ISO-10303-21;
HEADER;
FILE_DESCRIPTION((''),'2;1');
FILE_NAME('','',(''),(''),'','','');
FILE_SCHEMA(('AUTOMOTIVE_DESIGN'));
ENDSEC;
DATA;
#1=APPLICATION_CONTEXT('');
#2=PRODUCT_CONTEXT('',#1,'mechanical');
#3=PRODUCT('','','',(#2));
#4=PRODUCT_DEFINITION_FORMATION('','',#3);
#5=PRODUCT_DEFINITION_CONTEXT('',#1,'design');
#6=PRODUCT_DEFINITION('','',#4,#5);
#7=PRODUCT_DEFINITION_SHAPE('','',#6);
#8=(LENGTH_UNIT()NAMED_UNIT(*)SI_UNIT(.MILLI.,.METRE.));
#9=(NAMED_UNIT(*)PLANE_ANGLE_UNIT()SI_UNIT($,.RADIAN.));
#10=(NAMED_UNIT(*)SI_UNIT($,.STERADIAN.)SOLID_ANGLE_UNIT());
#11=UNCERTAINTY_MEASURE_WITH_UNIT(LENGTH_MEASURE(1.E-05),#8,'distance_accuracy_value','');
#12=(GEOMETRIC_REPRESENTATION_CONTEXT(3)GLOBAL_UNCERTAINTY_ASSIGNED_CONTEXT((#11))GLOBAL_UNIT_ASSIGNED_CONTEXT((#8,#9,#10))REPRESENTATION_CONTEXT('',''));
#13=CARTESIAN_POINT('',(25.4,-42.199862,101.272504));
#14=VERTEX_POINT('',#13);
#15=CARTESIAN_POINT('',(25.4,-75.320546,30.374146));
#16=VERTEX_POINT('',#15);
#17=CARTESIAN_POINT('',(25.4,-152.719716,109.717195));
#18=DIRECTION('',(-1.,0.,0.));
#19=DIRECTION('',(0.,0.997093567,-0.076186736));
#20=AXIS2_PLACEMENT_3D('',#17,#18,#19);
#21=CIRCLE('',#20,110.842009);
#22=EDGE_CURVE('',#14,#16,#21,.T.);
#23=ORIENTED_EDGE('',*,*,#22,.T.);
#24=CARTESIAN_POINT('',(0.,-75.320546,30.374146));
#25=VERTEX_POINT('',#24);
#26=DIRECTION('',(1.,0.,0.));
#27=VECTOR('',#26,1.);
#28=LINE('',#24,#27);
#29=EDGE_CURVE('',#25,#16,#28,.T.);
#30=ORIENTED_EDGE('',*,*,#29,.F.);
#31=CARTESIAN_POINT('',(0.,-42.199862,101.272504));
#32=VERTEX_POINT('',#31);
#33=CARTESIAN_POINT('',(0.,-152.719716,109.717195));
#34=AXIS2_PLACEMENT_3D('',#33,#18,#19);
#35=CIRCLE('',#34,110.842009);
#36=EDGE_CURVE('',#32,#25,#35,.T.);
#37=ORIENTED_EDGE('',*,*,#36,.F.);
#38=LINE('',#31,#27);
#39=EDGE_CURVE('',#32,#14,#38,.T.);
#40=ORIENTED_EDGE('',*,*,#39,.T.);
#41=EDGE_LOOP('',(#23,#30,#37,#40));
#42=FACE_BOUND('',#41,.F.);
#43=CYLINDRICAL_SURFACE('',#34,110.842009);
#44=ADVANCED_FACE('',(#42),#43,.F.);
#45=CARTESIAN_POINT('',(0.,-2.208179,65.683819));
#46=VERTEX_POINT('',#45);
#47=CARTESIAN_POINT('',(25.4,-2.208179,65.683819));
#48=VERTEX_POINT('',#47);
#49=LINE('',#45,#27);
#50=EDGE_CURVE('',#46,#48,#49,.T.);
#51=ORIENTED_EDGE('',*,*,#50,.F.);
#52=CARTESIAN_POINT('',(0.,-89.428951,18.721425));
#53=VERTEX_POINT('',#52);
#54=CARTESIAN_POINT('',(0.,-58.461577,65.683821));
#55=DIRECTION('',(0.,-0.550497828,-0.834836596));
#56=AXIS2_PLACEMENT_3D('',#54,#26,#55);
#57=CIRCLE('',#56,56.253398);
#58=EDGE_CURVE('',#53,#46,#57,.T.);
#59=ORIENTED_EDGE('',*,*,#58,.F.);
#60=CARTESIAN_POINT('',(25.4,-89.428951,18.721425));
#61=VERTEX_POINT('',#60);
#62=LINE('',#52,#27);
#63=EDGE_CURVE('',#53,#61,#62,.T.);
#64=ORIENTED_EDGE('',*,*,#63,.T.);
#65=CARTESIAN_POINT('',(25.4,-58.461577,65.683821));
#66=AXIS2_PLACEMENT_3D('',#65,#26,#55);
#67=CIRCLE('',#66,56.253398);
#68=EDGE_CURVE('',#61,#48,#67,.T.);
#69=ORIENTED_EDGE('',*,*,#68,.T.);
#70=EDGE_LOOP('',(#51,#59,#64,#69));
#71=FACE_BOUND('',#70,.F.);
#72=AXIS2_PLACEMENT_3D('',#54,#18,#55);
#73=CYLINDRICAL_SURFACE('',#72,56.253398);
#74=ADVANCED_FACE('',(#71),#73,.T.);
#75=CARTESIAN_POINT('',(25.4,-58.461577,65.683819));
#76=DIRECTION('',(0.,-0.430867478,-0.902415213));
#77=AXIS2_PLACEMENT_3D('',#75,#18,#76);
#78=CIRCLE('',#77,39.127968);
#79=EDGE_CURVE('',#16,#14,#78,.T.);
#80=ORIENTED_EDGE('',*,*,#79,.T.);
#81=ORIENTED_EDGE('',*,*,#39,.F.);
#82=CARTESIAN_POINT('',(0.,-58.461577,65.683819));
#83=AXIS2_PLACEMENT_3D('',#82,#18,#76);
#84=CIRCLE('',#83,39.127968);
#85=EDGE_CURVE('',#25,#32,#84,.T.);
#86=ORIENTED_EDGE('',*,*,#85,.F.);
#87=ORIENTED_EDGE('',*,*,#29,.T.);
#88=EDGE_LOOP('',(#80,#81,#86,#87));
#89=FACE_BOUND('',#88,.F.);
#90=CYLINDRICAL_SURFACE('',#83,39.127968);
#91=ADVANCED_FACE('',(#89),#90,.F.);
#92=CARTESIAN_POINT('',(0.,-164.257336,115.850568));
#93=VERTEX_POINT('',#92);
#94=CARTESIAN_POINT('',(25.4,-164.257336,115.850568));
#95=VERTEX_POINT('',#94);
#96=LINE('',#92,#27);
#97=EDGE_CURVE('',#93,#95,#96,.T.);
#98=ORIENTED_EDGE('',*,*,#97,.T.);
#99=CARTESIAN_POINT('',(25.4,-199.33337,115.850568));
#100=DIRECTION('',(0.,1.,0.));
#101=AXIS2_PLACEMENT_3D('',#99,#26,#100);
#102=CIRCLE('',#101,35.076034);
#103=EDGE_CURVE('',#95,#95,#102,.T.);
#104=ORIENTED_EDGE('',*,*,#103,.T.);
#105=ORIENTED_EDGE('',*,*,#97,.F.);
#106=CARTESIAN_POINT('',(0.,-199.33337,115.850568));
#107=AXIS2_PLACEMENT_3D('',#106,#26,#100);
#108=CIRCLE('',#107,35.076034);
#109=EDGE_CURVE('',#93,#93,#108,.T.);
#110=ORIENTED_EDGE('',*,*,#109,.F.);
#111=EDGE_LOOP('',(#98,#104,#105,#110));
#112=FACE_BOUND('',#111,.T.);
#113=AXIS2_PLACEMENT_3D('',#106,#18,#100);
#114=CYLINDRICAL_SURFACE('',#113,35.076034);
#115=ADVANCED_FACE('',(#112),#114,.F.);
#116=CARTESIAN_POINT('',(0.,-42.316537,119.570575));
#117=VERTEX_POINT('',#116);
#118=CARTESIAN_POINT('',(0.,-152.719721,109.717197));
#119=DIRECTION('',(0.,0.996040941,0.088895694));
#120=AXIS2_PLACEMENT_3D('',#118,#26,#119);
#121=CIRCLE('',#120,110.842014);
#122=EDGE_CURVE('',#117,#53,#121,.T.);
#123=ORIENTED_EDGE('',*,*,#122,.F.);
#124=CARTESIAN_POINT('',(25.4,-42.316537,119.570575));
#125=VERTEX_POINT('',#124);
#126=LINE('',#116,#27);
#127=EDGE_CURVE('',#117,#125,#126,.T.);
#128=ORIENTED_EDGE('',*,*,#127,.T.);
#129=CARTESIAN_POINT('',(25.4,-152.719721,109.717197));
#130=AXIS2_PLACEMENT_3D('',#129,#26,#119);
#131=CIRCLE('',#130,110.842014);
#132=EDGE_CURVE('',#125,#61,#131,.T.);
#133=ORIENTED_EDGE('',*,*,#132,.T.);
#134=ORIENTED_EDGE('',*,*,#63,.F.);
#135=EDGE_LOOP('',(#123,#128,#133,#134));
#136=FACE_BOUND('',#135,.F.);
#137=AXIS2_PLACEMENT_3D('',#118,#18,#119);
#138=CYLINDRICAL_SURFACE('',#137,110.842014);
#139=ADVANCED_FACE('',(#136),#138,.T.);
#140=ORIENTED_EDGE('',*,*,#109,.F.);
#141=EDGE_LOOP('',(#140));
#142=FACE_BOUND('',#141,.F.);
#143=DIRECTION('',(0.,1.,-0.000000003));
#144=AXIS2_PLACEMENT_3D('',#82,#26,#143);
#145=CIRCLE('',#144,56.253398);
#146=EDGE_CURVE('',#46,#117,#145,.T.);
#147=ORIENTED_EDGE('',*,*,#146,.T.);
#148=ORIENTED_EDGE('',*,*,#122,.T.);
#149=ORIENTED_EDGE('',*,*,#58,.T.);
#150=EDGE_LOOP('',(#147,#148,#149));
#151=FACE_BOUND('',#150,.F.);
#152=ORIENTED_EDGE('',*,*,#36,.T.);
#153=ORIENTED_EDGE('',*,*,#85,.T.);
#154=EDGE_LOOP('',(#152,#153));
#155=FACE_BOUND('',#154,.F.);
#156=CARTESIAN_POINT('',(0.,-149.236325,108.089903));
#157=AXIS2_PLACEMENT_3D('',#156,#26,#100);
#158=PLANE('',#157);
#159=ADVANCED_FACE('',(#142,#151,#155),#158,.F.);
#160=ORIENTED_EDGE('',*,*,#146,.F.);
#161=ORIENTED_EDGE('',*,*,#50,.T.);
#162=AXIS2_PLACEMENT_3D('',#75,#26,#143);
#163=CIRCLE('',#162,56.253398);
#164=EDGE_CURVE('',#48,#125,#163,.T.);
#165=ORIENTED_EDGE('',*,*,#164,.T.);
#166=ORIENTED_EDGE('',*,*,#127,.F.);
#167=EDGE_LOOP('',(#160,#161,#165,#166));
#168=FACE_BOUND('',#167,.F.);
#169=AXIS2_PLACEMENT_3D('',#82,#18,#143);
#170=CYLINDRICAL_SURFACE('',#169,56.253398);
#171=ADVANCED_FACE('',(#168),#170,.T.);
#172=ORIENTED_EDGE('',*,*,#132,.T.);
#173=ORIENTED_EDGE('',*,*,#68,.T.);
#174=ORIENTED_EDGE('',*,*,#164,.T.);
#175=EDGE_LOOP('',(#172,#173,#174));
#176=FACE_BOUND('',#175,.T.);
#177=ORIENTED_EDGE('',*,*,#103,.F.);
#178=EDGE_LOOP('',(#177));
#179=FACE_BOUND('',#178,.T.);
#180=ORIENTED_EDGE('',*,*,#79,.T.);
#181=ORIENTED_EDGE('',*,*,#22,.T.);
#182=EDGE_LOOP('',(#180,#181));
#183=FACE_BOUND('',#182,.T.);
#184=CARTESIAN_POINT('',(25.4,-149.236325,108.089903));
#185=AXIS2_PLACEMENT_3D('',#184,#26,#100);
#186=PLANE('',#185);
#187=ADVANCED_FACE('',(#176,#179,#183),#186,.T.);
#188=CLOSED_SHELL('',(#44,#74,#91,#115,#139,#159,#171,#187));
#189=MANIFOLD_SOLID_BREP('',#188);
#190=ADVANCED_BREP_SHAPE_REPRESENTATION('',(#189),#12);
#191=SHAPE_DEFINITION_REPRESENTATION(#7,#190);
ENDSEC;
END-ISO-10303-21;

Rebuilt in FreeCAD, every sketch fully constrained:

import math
import FreeCAD as App
import Part
import Sketcher

V = App.Vector
Q = App.Units.Quantity

doc = App.newDocument("Part")
body = doc.addObject("PartDesign::Body", "Body")

# Sketch on YZ plane
sketch1 = body.newObject("Sketcher::SketchObject", "Sketch")
sketch1.AttachmentSupport = (doc.getObject("YZ_Plane"), [""])
sketch1.MapMode = "FlatFace"
sketch1.addGeometry([
    Part.ArcOfCircle(Part.Circle(V(-153, 110, 0), V(0, 0, 1), 111), math.radians(5), math.radians(305)),  # 0
    Part.ArcOfCircle(Part.Circle(V(-58, 66, 0), V(0, 0, 1), 56), math.radians(-123), math.radians(0)),  # 1
    Part.ArcOfCircle(Part.Circle(V(-58, 66, 0), V(0, 0, 1), 56), math.radians(0), math.radians(73)),  # 2
    Part.Circle(V(-199, 116, 0), V(0, 0, 1), 35),  # 3
    Part.ArcOfCircle(Part.Circle(V(-58, 66, 0), V(0, 0, 1), 39), math.radians(65), math.radians(244)),  # 4
    Part.ArcOfCircle(Part.Circle(V(-153, 110, 0), V(0, 0, 1), 111), math.radians(-46), math.radians(-4)),  # 5
], False)
sketch1.addConstraint([
    Sketcher.Constraint("Coincident", 0, 2, 1, 1),
    Sketcher.Constraint("Tangent", 1, 2, 2, 1),
    Sketcher.Constraint("Coincident", 2, 2, 0, 1),
    Sketcher.Constraint("Coincident", 4, 1, 5, 2),
    Sketcher.Constraint("Coincident", 5, 1, 4, 2),
    Sketcher.Constraint("Coincident", 4, 3, 1, 3),
    Sketcher.Constraint("Coincident", 5, 3, 0, 3),
    Sketcher.Constraint("Equal", 1, 2),
    Sketcher.Constraint("Horizontal", 4, 3, 1, 2),
    Sketcher.Constraint("Radius", 1, 56.253398),
    Sketcher.Constraint("Diameter", 3, 70.152068),
    Sketcher.Constraint("Radius", 5, 110.842009),
    Sketcher.Constraint("Radius", 0, 110.842014),
    Sketcher.Constraint("Radius", 4, 39.127968),
    Sketcher.Constraint("DistanceX", 0, 3, -1, 1, 152.719721),
    Sketcher.Constraint("DistanceY", -1, 1, 1, 3, 65.683821),
    Sketcher.Constraint("DistanceX", 3, 3, -1, 1, 199.33337),
    Sketcher.Constraint("DistanceX", 0, 2, -1, 1, 89.428951),
    Sketcher.Constraint("DistanceX", 1, 2, -1, 1, 2.208179),
    Sketcher.Constraint("DistanceY", 0, 3, 3, 3, 6.133371),
])
pad1 = body.newObject("PartDesign::Pad", "Pad")
pad1.Profile = sketch1
pad1.Length = Q("1 in")

doc.recompute()
